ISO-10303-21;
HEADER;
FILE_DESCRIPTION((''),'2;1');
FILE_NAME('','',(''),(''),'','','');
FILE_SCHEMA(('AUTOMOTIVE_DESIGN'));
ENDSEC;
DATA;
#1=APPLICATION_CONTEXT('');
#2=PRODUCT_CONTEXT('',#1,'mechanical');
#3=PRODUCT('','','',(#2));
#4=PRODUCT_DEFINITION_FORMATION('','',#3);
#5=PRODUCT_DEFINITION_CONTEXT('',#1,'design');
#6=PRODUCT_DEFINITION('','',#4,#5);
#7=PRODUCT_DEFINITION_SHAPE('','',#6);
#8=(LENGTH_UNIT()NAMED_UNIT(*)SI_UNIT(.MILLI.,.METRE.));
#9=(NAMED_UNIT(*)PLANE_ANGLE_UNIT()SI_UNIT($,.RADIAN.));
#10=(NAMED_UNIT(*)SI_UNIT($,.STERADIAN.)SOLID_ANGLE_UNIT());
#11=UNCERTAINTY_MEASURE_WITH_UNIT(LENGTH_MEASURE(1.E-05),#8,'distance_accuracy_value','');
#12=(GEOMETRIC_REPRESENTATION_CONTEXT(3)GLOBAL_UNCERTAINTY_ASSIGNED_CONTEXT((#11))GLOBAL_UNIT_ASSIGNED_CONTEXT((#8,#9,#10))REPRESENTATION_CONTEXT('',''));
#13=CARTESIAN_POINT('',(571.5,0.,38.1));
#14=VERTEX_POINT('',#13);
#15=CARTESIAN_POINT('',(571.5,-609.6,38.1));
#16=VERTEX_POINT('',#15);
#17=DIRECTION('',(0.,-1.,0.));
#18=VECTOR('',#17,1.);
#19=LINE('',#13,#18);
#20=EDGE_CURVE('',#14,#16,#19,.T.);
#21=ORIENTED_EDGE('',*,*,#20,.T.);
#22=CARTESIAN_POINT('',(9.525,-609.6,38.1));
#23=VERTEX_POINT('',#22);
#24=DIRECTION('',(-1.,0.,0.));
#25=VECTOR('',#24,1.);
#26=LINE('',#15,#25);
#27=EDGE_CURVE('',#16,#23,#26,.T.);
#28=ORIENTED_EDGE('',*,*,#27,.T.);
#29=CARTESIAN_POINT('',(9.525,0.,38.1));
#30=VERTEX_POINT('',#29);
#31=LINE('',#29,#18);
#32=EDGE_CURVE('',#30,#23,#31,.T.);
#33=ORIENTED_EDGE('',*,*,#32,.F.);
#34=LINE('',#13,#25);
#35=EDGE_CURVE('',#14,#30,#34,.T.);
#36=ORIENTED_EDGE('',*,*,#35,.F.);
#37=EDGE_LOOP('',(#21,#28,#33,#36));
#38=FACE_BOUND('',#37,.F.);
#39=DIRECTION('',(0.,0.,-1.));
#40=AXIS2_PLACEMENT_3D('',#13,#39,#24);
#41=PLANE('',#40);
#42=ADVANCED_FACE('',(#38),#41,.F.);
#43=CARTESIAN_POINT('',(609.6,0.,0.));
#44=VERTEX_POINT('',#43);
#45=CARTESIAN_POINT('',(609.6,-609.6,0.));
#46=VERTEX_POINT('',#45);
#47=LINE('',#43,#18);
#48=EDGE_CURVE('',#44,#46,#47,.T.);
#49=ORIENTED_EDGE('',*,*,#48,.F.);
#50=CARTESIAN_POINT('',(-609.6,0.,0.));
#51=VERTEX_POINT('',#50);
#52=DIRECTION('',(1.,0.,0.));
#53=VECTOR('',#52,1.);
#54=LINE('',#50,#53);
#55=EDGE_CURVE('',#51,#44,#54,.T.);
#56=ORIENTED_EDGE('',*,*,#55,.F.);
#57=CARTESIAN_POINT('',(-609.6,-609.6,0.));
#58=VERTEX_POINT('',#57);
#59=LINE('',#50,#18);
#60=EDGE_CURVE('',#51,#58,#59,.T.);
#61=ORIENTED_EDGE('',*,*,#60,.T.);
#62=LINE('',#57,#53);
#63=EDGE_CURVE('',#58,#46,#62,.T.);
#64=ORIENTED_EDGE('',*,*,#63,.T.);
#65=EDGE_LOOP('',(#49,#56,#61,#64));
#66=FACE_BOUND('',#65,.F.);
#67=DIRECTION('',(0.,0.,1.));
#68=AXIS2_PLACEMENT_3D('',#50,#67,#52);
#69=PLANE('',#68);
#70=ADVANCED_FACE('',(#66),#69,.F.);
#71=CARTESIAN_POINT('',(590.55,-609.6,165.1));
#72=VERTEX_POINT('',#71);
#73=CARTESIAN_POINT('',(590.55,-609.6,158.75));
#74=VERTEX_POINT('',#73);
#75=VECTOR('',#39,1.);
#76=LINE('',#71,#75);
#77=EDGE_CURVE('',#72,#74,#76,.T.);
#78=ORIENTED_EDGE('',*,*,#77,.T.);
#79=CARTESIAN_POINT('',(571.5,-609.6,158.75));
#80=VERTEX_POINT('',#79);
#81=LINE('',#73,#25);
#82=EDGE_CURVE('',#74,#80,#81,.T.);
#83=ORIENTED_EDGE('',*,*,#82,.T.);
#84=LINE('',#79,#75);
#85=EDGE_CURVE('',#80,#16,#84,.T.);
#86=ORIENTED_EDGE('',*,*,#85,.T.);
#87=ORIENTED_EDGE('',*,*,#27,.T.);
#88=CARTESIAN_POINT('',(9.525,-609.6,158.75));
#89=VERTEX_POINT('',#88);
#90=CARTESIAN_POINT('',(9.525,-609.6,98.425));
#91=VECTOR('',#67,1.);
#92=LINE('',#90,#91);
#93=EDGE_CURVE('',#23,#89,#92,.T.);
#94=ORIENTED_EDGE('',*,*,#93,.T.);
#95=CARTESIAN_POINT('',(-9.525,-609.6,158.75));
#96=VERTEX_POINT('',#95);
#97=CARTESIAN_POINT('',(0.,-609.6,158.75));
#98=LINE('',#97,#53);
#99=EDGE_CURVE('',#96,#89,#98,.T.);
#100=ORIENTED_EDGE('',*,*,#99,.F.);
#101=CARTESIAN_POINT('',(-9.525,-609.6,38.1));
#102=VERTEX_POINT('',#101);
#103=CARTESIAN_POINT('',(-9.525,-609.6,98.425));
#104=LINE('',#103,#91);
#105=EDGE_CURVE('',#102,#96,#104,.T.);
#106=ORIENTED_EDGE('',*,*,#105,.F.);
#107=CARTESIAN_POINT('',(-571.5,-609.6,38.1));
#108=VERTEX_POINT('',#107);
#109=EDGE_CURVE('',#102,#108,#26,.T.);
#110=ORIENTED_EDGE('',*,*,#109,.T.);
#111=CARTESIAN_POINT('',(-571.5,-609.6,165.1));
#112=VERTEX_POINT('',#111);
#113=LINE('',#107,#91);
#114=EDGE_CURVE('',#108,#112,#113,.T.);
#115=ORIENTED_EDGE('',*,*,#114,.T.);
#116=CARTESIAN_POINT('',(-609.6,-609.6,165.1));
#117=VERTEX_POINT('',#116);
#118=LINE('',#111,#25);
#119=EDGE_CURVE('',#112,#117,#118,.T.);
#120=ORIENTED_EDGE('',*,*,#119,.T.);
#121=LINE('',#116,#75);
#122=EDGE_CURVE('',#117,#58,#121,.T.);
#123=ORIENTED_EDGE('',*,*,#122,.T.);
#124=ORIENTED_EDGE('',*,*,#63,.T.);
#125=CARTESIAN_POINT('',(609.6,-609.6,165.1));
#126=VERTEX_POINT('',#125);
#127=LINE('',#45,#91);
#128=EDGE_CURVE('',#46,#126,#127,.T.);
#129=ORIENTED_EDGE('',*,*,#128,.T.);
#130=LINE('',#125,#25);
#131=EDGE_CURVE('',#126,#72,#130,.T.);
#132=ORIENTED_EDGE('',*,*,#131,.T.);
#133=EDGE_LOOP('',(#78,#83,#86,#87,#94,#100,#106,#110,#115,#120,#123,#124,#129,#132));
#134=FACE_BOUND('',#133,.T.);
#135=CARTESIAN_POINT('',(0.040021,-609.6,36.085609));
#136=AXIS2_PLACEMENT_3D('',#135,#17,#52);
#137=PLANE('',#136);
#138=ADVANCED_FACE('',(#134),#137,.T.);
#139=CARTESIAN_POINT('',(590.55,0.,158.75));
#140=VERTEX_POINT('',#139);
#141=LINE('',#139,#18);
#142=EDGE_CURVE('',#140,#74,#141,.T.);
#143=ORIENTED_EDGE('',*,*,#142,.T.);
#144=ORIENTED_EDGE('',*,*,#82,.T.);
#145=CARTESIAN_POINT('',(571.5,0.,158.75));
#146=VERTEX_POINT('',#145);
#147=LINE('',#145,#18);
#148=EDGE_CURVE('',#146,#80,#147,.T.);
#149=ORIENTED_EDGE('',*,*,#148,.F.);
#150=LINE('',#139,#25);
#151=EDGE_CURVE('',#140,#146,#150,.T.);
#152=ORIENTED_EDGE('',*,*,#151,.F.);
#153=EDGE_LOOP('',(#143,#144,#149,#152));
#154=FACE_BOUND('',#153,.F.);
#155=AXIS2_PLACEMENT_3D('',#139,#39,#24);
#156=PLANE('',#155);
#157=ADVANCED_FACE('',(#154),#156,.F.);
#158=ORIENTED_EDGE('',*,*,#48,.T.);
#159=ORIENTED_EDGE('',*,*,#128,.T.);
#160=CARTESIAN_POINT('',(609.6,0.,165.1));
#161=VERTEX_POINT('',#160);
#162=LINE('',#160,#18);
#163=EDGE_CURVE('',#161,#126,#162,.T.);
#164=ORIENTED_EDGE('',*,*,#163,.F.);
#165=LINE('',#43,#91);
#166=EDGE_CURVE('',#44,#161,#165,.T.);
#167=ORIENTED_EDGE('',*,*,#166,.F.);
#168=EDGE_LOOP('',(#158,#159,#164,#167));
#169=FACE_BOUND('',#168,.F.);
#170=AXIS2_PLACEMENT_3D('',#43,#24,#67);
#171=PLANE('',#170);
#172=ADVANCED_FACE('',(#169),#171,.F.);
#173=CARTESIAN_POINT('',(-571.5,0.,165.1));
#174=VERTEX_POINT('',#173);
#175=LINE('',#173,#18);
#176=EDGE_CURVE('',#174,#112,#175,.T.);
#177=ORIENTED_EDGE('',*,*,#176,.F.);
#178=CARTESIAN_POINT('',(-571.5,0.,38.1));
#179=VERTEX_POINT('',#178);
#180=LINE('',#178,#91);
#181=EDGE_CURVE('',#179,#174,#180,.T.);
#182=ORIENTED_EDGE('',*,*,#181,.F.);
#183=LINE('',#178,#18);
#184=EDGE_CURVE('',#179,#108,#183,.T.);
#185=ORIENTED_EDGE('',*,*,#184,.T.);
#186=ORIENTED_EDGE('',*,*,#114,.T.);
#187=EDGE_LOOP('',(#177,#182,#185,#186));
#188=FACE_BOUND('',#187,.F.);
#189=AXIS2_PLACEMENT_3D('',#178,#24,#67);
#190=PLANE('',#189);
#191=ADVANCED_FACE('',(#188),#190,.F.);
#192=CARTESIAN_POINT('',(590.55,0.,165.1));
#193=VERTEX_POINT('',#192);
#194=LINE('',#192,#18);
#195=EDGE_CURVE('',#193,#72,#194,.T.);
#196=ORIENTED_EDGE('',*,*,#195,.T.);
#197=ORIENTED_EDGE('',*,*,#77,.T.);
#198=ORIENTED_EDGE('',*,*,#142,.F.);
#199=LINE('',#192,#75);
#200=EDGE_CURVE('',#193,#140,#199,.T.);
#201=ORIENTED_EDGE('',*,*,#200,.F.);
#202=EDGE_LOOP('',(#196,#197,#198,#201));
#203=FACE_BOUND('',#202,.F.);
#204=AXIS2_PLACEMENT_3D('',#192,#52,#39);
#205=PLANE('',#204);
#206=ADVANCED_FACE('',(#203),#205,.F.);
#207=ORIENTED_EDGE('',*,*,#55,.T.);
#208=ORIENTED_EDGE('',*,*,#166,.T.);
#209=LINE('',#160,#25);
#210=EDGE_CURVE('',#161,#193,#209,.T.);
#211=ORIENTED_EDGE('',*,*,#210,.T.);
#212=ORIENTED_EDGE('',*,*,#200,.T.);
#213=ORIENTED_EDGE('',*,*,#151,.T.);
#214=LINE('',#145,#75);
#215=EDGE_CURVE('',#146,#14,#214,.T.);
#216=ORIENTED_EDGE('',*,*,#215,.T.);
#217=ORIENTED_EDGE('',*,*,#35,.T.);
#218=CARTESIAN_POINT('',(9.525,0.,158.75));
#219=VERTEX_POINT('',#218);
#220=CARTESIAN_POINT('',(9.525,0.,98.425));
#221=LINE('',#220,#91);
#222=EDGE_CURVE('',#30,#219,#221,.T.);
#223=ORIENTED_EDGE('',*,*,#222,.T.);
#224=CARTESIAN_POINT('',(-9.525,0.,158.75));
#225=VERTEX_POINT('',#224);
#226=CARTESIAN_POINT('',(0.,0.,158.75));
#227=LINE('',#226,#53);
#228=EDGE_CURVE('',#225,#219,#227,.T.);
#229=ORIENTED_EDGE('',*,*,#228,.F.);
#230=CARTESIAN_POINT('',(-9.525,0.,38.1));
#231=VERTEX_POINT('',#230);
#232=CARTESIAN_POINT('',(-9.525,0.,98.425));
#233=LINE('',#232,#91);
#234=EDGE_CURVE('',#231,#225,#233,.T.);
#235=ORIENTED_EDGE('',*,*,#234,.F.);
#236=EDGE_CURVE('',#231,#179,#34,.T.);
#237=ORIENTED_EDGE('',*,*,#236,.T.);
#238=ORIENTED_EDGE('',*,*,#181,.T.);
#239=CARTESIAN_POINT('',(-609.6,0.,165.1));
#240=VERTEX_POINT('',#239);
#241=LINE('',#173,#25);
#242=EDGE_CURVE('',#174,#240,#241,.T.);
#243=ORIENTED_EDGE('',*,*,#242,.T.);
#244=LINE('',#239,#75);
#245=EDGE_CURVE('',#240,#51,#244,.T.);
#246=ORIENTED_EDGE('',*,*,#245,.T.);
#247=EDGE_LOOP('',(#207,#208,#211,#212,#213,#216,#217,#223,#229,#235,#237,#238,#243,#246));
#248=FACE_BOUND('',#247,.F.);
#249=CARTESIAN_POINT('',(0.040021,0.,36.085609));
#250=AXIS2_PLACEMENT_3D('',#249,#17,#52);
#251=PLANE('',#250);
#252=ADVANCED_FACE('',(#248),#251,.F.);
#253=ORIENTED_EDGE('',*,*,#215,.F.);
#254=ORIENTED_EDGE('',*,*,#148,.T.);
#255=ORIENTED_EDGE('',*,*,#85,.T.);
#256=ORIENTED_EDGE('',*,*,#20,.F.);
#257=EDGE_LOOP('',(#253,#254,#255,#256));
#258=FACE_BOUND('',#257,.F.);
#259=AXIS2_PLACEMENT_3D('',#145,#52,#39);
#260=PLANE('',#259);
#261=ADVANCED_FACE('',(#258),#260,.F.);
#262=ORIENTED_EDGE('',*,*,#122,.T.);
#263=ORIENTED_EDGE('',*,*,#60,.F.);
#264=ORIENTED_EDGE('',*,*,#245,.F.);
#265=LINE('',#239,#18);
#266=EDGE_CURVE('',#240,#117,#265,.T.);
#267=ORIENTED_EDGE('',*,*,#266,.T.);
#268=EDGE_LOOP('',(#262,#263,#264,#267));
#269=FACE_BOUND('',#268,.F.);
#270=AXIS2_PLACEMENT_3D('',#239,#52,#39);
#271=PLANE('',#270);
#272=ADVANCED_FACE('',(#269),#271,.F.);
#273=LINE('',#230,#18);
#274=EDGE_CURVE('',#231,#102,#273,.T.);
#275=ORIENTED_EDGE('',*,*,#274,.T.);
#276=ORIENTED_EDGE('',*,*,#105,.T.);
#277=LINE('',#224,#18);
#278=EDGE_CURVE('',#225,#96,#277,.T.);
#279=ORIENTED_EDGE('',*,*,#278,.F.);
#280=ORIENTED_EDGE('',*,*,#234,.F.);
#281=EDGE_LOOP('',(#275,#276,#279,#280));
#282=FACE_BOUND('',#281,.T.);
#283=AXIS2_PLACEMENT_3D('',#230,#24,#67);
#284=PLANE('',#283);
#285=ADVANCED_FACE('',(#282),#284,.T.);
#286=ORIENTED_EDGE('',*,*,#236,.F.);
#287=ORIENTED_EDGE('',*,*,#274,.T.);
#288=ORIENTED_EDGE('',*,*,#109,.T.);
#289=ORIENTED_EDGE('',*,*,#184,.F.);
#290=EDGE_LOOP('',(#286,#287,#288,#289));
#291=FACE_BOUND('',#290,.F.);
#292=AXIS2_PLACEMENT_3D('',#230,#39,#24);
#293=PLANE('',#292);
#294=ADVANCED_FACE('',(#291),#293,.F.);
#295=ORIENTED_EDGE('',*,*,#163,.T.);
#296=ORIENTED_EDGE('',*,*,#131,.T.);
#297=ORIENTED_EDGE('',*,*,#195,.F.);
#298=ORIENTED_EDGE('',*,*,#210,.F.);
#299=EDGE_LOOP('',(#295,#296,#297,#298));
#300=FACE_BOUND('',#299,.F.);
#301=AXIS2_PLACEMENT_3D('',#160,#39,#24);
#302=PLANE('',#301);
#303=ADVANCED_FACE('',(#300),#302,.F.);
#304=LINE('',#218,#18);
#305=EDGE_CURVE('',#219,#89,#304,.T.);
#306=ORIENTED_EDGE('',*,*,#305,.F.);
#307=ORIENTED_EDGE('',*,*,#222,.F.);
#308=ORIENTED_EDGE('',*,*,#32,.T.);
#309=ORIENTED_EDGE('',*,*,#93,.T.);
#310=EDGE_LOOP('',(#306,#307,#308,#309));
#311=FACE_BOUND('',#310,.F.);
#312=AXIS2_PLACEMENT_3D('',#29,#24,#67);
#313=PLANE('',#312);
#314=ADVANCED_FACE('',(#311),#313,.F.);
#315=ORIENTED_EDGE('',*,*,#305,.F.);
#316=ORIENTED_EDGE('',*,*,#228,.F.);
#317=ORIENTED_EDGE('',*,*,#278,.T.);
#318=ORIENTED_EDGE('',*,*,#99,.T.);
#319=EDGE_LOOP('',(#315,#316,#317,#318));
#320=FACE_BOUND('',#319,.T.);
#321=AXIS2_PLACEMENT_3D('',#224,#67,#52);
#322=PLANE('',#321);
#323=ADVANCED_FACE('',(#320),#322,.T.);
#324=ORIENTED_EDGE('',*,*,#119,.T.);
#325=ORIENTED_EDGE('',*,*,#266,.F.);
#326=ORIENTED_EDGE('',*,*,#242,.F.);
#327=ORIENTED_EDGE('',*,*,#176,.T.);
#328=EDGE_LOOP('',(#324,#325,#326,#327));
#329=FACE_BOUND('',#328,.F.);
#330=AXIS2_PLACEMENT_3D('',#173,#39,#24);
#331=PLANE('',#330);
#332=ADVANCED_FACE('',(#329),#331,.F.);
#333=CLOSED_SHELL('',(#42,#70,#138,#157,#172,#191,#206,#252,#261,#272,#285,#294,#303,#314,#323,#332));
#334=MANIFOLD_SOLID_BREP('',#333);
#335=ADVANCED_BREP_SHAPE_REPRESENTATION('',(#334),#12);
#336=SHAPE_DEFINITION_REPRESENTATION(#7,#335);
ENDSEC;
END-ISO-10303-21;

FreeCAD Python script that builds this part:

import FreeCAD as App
import Part
import Sketcher
from FreeCAD import Vector
Q = App.Units.Quantity


def add_polygon(sketch, points):
    """Adds a closed chain of lines whose ends are joined by coincident constraints."""
    first, n = sketch.GeometryCount, len(points)
    for a, b in zip(points, points[1:] + points[:1]):
        sketch.addGeometry(Part.LineSegment(App.Vector(*a, 0), App.Vector(*b, 0)), False)
    for i in range(n):
        sketch.addConstraint(Sketcher.Constraint("Coincident", first + i, 2, first + (i + 1) % n, 1))

doc = App.newDocument("Part")
body = doc.addObject("PartDesign::Body", "Body")

# Sketch on XZ plane
sketch1 = body.newObject("Sketcher::SketchObject", "Sketch")
sketch1.AttachmentSupport = (doc.getObject("XZ_Plane"), [""])
sketch1.MapMode = "FlatFace"
add_polygon(sketch1, [(-610, 165), (-610, 0), (610, 0), (610, 165), (591, 165), (591, 159), (572, 159), (572, 38), (10, 38), (10, 159), (-10, 159), (-10, 38), (-572, 38), (-572, 165)])  # lines 0-13
sketch1.addConstraint([
    Sketcher.Constraint("Vertical", 0),
    Sketcher.Constraint("Horizontal", 1),
    Sketcher.Constraint("Vertical", 2),
    Sketcher.Constraint("Horizontal", 3),
    Sketcher.Constraint("Vertical", 4),
    Sketcher.Constraint("Horizontal", 5),
    Sketcher.Constraint("Vertical", 6),
    Sketcher.Constraint("Horizontal", 7),
    Sketcher.Constraint("Vertical", 8),
    Sketcher.Constraint("Horizontal", 9),
    Sketcher.Constraint("Vertical", 10),
    Sketcher.Constraint("Horizontal", 11),
    Sketcher.Constraint("Vertical", 12),
    Sketcher.Constraint("Horizontal", 13),
    Sketcher.Constraint("Symmetric", 0, 2, 1, 2, -1, 1),
    Sketcher.Constraint("Symmetric", 7, 2, 10, 2, -2),
    Sketcher.Constraint("Horizontal", 5, 2, 8, 2),
    Sketcher.Constraint("Horizontal", 3, 2, 12, 2),
    Sketcher.Constraint("Equal", 3, 5),
    Sketcher.Constraint("Equal", 5, 9),
    Sketcher.Constraint("Equal", 7, 11),
    Sketcher.Constraint("DistanceX", 1, 1, 1, 2, Q("48 in")),
    Sketcher.Constraint("DistanceY", 12, 1, 12, 2, Q("5 in")),
    Sketcher.Constraint("DistanceX", 13, 2, 13, 1, Q("1.5 in")),
    Sketcher.Constraint("DistanceY", 0, 2, 0, 1, Q("6.5 in")),
    Sketcher.Constraint("DistanceY", 4, 2, 4, 1, Q("0.25 in")),
])
pad1 = body.newObject("PartDesign::Pad", "Pad")
pad1.Profile = sketch1
pad1.Length = Q("24 in")

doc.recompute()
